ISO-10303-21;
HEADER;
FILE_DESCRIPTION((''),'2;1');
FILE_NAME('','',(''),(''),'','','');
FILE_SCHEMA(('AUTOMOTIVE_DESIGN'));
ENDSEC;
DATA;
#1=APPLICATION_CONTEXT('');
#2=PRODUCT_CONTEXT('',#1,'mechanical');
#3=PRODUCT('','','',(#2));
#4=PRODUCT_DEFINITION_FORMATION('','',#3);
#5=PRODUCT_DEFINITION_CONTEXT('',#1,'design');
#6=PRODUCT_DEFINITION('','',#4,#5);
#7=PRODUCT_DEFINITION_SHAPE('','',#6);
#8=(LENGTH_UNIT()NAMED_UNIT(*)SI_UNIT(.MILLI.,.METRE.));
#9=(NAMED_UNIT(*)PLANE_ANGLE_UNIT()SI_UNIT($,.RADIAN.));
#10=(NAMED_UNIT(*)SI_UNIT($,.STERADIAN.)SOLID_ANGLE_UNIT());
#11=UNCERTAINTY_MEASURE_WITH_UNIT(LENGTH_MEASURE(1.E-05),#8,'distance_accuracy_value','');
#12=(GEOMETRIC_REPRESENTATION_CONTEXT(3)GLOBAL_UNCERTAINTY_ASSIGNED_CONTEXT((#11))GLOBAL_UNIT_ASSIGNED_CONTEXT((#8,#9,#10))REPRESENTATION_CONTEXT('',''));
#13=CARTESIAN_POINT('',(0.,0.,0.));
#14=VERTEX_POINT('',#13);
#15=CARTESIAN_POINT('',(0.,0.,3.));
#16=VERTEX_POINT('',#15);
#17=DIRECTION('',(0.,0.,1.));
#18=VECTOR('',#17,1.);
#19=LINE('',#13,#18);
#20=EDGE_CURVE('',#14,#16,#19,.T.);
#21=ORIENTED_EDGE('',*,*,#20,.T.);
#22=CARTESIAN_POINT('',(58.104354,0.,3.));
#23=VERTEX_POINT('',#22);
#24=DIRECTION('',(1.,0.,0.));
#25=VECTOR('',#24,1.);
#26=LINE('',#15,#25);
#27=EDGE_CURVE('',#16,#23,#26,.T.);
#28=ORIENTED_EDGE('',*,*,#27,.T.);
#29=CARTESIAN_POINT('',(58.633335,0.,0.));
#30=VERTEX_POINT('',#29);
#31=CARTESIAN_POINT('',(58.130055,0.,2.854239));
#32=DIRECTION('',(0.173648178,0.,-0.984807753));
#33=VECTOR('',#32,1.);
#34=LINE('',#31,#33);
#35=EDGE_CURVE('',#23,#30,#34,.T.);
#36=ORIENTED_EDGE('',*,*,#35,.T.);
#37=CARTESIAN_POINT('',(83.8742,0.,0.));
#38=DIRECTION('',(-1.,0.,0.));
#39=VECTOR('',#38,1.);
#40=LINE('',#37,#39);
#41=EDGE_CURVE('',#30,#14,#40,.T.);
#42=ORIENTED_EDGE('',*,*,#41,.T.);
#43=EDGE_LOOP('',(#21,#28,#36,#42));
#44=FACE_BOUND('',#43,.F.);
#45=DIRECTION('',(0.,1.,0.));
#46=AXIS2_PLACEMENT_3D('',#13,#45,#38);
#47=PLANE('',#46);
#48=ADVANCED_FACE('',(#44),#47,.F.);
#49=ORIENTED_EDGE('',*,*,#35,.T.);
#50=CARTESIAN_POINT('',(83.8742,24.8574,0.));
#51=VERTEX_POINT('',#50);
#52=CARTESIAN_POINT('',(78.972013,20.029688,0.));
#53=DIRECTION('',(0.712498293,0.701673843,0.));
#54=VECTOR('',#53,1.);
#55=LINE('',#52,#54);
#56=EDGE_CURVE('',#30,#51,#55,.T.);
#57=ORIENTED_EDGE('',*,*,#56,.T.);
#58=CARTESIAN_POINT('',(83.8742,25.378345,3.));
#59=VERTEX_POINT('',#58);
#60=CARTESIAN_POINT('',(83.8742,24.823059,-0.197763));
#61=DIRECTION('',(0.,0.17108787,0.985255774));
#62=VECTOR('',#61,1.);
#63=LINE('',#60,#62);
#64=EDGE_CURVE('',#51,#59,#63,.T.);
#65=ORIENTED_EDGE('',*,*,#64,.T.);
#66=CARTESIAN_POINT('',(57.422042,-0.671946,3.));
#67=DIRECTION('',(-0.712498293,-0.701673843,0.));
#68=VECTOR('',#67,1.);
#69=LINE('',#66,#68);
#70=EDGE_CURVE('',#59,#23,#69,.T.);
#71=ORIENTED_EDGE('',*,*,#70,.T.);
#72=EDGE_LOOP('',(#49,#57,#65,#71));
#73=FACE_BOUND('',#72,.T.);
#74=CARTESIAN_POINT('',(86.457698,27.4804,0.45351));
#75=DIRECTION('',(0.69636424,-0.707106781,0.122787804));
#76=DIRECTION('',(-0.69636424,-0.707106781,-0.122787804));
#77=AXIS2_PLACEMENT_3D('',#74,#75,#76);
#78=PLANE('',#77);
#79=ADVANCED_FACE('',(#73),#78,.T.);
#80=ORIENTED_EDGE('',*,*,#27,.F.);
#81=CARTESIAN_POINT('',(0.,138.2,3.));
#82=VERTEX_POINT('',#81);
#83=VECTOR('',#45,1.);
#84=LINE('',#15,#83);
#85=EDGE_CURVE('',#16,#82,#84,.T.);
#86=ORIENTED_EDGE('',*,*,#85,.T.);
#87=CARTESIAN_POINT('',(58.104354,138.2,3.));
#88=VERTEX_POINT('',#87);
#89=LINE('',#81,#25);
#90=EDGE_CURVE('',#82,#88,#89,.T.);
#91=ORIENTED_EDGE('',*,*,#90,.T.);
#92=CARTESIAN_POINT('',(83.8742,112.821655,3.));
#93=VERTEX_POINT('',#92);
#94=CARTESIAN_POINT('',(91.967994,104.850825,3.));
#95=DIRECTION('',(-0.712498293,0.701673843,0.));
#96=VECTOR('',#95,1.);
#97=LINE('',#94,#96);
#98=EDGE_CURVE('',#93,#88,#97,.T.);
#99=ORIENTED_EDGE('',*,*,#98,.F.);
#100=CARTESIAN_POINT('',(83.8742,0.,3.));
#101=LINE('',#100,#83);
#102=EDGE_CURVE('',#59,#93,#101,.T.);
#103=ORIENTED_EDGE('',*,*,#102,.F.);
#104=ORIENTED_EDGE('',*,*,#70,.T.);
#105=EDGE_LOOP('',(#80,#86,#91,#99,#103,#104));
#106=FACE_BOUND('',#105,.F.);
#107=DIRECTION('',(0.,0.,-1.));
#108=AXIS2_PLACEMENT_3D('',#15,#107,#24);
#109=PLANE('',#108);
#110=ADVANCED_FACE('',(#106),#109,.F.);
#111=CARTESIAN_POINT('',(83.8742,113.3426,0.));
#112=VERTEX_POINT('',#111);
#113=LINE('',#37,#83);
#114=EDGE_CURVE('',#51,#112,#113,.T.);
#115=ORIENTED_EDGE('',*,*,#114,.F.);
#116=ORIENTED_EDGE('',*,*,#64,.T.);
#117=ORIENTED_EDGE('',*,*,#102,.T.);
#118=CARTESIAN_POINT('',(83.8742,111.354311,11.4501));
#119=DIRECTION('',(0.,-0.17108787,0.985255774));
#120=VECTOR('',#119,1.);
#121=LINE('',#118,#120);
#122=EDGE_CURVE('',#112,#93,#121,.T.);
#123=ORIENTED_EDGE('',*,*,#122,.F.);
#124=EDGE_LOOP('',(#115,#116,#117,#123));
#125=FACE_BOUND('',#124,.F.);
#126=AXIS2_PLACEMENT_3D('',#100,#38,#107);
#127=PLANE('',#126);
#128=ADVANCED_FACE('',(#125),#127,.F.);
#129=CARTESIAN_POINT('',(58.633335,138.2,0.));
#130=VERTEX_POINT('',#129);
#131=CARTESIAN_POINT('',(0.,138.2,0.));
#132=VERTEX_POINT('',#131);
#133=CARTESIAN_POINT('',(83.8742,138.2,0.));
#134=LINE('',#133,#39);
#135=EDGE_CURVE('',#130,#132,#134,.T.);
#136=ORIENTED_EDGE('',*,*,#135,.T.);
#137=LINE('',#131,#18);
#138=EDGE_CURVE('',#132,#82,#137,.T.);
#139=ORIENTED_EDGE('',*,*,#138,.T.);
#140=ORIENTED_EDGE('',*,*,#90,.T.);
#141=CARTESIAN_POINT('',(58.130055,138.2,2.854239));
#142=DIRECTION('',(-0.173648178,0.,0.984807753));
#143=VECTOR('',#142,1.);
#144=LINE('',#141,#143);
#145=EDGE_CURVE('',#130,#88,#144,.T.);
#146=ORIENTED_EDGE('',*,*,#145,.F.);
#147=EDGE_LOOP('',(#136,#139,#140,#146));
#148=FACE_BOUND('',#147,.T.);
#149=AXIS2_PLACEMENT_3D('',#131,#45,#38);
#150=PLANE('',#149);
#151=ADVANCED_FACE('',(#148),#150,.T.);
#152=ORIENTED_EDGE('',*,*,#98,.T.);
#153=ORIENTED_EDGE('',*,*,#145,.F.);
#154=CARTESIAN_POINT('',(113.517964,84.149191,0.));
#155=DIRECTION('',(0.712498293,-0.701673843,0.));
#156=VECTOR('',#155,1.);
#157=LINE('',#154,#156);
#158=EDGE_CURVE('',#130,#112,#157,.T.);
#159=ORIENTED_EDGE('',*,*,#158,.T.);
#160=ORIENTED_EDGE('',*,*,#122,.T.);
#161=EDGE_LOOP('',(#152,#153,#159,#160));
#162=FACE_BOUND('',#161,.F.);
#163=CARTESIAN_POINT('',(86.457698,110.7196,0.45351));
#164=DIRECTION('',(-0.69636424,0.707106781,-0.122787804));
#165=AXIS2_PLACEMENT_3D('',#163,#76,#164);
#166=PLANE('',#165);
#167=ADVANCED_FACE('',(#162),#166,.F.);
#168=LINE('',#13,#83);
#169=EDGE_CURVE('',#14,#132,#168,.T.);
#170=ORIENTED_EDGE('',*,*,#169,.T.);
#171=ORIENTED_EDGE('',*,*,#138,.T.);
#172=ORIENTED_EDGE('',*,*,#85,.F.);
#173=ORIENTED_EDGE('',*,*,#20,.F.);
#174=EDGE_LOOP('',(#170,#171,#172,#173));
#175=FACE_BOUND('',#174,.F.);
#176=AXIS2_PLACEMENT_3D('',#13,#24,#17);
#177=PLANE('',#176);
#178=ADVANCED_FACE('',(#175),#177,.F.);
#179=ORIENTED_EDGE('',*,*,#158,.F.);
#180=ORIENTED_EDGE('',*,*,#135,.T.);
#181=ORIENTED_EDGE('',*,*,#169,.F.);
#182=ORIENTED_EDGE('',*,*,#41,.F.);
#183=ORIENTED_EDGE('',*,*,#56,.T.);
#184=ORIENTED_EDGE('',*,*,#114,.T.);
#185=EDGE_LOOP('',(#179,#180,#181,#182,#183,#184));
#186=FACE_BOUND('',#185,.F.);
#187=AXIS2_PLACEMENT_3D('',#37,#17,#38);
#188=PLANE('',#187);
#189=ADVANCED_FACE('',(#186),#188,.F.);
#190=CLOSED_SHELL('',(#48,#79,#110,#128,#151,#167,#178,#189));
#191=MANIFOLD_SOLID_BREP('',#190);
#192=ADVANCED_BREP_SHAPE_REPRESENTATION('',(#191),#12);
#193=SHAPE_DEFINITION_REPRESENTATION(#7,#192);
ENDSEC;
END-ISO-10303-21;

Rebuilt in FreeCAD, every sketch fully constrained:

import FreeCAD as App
import Part
import Sketcher

V = App.Vector


def add_polygon(sketch, points):
    """Adds a closed chain of lines whose ends are joined by coincident constraints."""
    first, n = sketch.GeometryCount, len(points)
    for a, b in zip(points, points[1:] + points[:1]):
        sketch.addGeometry(Part.LineSegment(App.Vector(*a, 0), App.Vector(*b, 0)), False)
    for i in range(n):
        sketch.addConstraint(Sketcher.Constraint("Coincident", first + i, 2, first + (i + 1) % n, 1))

doc = App.newDocument("Part")
body = doc.addObject("PartDesign::Body", "Body")

# Sketch on XZ plane
sketch1 = body.newObject("Sketcher::SketchObject", "Sketch")
sketch1.AttachmentSupport = (doc.getObject("XZ_Plane"), [""])
sketch1.MapMode = "FlatFace"
add_polygon(sketch1, [(83.8742, 3), (83.8742, 0), (0, 0), (0, 3)])  # lines 0-3
sketch1.addConstraint([
    Sketcher.Constraint("Vertical", 0),
    Sketcher.Constraint("Horizontal", 1),
    Sketcher.Constraint("Vertical", 2),
    Sketcher.Constraint("Horizontal", 3),
    Sketcher.Constraint("Coincident", 1, 2, -1, 1),
    Sketcher.Constraint("DistanceY", 0, 2, 0, 1, 3.0),
    Sketcher.Constraint("DistanceX", 1, 2, 1, 1, 83.8742),
])
pad1 = body.newObject("PartDesign::Pad", "Pad")
pad1.Profile = sketch1
pad1.Length = 138.2
pad1.Reversed = True

# Sketch on an angled plane
sketch2 = body.newObject("Sketcher::SketchObject", "Sketch001")
sketch2.Placement = App.Placement(V(83.8742, 109.1, 0), App.Rotation(V(0, -1, 0), V(0.984807753, 0, 0.173648178), V(-0.173648178, 0, 0.984807753), "ZXY"))
add_polygon(sketch2, [(-30.4458, -26.2032), (-1.6196, 2.623), (-42, 2.623), (-42, -26.2032)])  # lines 0-3
add_polygon(sketch2, [(120.2426, 2.623), (81.6196, 2.623), (110.4458, -26.2032), (120.2426, -26.2032)])  # lines 4-7
sketch2.addConstraint([
    Sketcher.Constraint("Horizontal", 1),
    Sketcher.Constraint("Vertical", 2),
    Sketcher.Constraint("Horizontal", 3),
    Sketcher.Constraint("Horizontal", 4),
    Sketcher.Constraint("Horizontal", 6),
    Sketcher.Constraint("Vertical", 7),
    Sketcher.Constraint("Perpendicular", 0, 5),
    Sketcher.Constraint("Horizontal", 1, 2, 4, 2),
    Sketcher.Constraint("Horizontal", 3, 2, 5, 2),
    Sketcher.Constraint("Equal", 0, 5),
    Sketcher.Constraint("DistanceX", 1, 2, -1, 1, 42.0),
    Sketcher.Constraint("DistanceX", 4, 2, 4, 1, 38.623),
    Sketcher.Constraint("DistanceX", 1, 2, 1, 1, 40.3804),
    Sketcher.Constraint("DistanceX", 3, 1, 3, 2, 11.5542),
    Sketcher.Constraint("DistanceY", -1, 1, 0, 2, 2.623),
    Sketcher.Constraint("DistanceX", -1, 1, 4, 2, 81.6196),
])
pocket1 = body.newObject("PartDesign::Pocket", "Pocket")
pocket1.Profile = sketch2
pocket1.Length = 13.7
pocket1.Reversed = True

doc.recompute()
